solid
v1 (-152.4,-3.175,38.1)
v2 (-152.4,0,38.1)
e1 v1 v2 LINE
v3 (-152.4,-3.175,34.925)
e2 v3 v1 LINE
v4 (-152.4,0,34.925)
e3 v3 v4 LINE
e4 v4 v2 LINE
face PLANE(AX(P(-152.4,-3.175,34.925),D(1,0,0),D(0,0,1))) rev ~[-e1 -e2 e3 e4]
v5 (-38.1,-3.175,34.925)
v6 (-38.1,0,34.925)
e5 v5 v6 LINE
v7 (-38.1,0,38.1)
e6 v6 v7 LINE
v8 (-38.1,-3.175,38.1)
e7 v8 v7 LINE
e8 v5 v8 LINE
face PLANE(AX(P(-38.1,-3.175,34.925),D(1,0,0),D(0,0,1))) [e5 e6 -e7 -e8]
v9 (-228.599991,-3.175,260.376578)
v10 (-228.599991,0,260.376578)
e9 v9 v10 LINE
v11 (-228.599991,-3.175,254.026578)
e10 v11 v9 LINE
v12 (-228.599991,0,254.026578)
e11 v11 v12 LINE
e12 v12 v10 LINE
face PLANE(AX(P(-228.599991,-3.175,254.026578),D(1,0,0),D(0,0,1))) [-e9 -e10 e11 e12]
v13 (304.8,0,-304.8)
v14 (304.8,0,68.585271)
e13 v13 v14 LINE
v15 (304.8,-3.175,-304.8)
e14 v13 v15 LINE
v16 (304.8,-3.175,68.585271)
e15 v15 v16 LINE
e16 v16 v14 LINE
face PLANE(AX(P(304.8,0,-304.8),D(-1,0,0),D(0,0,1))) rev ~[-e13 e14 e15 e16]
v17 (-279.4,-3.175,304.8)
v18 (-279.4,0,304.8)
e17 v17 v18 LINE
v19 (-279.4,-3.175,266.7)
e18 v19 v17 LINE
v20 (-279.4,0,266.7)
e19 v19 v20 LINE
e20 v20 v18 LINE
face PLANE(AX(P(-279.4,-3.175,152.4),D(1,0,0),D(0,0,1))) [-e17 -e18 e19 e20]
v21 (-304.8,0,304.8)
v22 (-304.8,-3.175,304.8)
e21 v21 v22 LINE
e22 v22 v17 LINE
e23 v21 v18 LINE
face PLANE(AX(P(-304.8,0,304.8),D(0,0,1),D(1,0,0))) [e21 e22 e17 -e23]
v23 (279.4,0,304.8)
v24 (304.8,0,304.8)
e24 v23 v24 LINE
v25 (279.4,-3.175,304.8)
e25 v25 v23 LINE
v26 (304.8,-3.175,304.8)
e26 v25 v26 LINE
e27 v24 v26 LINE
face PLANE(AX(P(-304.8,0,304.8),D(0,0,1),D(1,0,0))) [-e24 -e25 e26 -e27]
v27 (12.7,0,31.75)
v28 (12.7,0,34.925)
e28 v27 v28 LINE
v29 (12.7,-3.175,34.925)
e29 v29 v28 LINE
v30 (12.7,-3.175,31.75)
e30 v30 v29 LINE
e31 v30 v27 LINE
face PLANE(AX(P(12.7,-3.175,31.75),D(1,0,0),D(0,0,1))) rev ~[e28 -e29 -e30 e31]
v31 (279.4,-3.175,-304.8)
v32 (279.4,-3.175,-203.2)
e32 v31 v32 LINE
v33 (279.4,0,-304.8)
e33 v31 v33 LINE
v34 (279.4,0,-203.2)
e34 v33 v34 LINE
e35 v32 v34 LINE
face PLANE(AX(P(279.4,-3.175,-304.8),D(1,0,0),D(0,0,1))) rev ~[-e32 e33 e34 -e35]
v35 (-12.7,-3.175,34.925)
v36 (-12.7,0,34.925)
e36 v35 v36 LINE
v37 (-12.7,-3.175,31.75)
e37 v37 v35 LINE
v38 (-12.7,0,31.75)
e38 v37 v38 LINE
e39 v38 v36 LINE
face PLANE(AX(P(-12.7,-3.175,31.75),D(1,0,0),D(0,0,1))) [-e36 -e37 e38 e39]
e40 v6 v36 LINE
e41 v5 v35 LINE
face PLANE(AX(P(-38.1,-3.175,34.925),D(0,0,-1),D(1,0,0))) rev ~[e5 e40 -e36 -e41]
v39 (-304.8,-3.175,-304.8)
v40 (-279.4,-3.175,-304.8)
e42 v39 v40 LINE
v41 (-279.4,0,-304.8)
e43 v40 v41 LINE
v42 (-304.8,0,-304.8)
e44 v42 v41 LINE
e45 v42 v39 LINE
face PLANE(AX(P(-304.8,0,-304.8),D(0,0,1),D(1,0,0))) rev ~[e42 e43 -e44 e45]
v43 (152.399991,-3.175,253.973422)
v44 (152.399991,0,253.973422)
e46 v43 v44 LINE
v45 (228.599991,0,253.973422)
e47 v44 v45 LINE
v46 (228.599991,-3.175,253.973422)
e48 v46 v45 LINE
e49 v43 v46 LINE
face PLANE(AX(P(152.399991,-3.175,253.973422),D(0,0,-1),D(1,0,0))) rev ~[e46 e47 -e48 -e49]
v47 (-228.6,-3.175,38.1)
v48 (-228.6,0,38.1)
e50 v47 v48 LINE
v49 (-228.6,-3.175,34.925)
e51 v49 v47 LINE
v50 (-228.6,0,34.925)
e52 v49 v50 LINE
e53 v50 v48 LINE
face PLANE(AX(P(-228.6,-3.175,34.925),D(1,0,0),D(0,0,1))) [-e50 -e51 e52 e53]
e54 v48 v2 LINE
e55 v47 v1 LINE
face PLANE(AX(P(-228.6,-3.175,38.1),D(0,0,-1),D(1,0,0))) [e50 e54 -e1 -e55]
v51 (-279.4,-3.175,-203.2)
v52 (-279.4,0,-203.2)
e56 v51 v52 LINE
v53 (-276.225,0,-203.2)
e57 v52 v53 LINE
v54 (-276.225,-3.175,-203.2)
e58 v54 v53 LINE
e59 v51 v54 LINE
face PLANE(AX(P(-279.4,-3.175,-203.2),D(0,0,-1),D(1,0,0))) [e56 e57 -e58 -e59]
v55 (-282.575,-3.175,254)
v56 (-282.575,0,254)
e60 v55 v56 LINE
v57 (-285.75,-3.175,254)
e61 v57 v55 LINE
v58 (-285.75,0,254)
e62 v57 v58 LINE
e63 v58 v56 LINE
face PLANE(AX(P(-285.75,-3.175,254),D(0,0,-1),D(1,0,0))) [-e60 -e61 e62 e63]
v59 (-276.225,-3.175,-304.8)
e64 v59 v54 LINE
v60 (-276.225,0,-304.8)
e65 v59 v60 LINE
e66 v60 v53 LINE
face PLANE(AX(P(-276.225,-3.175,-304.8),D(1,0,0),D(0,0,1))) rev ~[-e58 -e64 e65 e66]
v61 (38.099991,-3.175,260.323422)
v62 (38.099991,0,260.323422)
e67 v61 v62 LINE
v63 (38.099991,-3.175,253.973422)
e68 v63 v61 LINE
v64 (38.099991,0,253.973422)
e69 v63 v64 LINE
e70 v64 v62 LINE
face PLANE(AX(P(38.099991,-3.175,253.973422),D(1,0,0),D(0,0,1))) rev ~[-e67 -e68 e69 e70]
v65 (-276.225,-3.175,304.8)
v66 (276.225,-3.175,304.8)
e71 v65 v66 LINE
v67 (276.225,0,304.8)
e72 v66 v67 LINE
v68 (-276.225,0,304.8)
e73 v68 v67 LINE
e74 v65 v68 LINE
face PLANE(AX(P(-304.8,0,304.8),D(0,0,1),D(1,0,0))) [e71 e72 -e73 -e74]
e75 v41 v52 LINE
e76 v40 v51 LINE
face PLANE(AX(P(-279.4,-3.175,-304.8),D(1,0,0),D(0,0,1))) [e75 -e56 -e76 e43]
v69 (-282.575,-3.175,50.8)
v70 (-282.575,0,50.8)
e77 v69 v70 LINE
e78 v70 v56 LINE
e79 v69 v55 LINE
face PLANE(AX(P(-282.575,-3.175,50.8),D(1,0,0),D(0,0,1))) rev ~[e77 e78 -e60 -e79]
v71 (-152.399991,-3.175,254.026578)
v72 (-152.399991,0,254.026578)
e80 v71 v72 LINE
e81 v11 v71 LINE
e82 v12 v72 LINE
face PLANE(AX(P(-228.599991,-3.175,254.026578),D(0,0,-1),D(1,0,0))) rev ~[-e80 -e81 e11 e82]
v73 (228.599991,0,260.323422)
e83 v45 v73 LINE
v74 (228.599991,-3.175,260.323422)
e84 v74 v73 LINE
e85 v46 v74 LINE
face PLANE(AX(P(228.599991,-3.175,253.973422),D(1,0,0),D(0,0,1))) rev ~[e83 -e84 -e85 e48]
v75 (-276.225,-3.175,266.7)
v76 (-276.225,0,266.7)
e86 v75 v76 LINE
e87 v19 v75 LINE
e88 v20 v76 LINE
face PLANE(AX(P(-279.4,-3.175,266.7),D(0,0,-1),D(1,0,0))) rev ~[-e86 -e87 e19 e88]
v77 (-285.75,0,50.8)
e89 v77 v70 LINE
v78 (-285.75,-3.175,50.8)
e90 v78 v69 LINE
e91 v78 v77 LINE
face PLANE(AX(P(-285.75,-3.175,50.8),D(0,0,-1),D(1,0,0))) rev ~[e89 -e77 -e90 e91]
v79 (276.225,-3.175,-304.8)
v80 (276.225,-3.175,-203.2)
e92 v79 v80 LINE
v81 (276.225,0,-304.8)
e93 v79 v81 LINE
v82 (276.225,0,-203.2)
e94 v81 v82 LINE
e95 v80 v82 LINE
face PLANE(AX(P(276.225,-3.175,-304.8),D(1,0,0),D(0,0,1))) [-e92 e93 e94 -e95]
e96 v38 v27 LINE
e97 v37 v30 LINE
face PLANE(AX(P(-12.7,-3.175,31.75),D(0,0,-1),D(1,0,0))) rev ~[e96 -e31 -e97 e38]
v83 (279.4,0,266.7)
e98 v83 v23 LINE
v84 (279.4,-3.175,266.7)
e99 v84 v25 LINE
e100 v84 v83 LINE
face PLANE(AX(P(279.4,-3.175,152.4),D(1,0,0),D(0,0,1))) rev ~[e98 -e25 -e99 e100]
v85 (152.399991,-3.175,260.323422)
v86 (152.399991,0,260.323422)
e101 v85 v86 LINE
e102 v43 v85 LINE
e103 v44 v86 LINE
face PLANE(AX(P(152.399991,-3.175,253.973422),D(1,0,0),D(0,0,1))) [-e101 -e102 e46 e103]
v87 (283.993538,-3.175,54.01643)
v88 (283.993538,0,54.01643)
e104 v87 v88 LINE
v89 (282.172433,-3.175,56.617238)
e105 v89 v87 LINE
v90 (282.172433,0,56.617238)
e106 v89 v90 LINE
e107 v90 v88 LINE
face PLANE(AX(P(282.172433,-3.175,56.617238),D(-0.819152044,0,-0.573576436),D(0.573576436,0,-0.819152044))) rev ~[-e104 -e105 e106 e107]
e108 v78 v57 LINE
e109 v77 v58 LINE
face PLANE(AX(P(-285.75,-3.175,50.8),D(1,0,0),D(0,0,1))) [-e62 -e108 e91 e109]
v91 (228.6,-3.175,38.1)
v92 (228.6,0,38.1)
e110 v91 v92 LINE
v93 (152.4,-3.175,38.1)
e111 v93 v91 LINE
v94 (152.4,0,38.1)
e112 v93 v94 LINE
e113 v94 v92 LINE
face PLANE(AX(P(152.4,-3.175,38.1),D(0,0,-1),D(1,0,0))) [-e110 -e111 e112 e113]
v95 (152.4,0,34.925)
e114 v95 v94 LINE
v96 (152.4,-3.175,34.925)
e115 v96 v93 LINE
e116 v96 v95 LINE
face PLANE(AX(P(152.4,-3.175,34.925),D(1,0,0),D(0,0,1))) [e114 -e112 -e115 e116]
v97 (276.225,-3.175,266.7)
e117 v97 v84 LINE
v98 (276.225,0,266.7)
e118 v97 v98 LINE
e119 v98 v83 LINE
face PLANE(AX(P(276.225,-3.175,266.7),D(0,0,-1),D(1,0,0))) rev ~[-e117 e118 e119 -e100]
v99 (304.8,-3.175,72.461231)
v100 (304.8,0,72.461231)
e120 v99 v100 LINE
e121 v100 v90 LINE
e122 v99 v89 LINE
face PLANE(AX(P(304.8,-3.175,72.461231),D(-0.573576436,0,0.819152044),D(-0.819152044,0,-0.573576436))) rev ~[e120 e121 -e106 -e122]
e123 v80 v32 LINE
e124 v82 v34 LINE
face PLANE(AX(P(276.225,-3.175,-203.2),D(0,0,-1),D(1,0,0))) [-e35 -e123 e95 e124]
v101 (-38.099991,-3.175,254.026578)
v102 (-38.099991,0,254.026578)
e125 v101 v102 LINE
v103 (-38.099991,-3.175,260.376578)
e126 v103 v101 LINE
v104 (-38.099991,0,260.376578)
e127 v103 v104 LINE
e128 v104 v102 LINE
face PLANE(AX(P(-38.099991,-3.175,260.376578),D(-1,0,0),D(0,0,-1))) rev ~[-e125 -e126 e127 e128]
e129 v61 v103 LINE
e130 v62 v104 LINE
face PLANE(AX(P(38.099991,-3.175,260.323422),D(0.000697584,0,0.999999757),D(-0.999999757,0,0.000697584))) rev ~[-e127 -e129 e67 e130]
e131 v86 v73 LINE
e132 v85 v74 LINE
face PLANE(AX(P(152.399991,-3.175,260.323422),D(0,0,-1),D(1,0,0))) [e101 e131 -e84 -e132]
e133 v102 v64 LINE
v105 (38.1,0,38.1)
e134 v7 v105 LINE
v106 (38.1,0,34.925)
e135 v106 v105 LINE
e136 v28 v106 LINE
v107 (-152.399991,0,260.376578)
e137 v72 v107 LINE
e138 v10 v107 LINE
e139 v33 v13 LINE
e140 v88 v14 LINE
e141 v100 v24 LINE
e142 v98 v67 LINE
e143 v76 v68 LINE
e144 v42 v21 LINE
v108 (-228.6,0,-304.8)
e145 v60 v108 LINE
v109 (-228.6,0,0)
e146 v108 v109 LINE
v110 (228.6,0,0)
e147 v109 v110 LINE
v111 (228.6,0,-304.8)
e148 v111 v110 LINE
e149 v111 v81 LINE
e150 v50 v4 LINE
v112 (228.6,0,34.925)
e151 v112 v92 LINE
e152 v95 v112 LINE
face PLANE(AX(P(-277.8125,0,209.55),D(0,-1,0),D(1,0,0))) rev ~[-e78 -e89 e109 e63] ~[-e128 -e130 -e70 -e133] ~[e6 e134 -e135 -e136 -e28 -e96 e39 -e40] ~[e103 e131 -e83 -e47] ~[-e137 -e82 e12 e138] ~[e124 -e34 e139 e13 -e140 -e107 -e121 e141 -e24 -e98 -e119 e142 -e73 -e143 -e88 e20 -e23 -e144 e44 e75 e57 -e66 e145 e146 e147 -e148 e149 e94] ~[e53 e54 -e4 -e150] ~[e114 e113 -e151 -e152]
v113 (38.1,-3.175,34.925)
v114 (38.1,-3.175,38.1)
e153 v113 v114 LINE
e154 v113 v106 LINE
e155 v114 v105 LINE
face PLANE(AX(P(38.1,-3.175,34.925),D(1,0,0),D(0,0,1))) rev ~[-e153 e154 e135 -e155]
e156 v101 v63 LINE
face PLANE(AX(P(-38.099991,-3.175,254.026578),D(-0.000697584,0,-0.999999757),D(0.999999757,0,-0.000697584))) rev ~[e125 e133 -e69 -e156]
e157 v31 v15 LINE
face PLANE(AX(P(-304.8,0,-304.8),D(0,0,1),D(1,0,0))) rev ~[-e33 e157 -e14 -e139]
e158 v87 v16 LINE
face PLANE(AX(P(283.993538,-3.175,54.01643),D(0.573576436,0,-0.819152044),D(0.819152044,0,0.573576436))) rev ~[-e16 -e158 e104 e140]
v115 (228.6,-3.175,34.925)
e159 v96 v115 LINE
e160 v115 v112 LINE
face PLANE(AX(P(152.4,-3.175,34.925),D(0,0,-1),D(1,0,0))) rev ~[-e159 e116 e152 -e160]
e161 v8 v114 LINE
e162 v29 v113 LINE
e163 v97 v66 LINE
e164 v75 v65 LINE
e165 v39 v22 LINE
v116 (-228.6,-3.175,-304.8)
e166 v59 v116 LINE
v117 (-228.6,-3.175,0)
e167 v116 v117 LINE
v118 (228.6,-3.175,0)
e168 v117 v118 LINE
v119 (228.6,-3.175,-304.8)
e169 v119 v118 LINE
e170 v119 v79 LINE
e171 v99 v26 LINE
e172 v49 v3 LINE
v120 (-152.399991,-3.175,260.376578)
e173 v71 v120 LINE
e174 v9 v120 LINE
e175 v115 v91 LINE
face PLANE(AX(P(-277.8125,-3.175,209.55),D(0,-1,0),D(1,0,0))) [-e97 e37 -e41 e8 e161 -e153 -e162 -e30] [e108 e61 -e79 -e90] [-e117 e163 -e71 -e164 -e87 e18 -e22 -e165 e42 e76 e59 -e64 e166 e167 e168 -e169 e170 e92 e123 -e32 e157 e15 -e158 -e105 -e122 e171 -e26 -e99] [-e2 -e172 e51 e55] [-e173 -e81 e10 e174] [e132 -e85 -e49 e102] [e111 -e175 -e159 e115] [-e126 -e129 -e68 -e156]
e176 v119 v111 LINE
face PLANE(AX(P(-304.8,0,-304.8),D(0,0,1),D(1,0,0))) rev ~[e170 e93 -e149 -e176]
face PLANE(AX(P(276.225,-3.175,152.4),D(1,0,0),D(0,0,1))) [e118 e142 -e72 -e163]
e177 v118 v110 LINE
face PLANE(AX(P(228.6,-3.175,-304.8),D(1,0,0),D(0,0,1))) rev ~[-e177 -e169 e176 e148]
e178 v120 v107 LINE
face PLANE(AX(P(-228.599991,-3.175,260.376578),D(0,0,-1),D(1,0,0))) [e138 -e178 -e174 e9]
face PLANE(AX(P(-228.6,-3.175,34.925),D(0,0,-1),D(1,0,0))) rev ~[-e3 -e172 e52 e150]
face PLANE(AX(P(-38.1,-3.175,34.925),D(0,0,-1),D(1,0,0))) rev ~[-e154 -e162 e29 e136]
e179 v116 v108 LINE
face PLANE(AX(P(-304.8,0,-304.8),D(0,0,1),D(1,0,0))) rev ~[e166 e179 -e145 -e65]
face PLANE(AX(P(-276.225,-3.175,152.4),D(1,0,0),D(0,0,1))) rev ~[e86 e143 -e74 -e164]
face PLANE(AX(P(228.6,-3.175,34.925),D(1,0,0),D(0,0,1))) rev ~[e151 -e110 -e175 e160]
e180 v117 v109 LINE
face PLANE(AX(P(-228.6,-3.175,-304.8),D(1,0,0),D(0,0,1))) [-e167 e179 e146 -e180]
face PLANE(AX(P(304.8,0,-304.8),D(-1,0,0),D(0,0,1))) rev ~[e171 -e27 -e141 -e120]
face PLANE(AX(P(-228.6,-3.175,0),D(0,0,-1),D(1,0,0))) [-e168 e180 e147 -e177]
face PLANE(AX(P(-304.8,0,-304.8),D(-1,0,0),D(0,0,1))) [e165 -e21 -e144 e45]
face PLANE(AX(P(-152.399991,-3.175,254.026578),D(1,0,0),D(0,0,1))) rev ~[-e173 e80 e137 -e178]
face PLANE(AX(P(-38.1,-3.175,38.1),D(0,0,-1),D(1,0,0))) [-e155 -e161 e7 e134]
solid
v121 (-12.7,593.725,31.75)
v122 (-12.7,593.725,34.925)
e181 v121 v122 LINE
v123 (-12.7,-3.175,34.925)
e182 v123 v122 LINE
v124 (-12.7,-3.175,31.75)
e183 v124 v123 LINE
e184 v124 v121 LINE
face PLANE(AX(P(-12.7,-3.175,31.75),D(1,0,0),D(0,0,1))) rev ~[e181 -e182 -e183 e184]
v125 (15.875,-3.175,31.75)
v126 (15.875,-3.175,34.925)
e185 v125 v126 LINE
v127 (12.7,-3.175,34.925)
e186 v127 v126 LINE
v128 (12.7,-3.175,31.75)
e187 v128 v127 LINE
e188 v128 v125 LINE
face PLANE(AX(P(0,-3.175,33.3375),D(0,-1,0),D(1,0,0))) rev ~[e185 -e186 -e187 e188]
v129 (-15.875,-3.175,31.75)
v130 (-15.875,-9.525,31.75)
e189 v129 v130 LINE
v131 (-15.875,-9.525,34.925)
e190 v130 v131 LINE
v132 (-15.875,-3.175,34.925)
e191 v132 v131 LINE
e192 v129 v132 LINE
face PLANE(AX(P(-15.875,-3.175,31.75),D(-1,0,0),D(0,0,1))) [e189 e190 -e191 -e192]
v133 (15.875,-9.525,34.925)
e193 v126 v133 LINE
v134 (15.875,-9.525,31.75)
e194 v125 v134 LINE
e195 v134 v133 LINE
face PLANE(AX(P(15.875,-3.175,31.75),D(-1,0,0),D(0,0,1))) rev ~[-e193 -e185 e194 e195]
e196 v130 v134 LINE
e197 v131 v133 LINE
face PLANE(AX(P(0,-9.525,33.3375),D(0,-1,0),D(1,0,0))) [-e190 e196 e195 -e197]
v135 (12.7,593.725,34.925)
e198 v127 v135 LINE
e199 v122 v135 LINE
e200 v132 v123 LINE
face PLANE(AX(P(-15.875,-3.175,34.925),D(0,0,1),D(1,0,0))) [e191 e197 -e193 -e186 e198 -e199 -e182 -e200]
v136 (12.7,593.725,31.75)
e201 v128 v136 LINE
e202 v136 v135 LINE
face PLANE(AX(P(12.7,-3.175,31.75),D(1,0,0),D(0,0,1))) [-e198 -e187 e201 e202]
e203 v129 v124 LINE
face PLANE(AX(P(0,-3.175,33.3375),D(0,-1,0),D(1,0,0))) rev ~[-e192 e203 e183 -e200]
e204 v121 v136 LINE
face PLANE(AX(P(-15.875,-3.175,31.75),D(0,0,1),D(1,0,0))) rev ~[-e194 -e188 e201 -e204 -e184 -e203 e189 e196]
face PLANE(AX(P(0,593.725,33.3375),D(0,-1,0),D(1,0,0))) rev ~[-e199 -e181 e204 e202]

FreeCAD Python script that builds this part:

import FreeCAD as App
import Part
import Sketcher
from FreeCAD import Vector
Q = App.Units.Quantity

doc = App.newDocument("Part")
body = doc.addObject("PartDesign::Body", "Body")

# Sketch on XZ plane
sketch1 = body.newObject("Sketcher::SketchObject", "Sketch")
sketch1.AttachmentSupport = (doc.getObject("XZ_Plane"), [""])
sketch1.MapMode = "FlatFace"
sketch1.addGeometry(Part.LineSegment(Vector(-305, 305, 0), Vector(-305, -305, 0)), False)
sketch1.addGeometry(Part.LineSegment(Vector(-305, -305, 0), Vector(305, -305, 0)), False)
sketch1.addGeometry(Part.LineSegment(Vector(305, -305, 0), Vector(305, 305, 0)), False)
sketch1.addGeometry(Part.LineSegment(Vector(305, 305, 0), Vector(-305, 305, 0)), False)
sketch1.addConstraint(Sketcher.Constraint("Coincident", 0, 2, 1, 1))
sketch1.addConstraint(Sketcher.Constraint("Coincident", 1, 2, 2, 1))
sketch1.addConstraint(Sketcher.Constraint("Coincident", 2, 2, 3, 1))
sketch1.addConstraint(Sketcher.Constraint("Coincident", 3, 2, 0, 1))
sketch1.addConstraint(Sketcher.Constraint("Vertical", 0))
sketch1.addConstraint(Sketcher.Constraint("Horizontal", 1))
sketch1.addConstraint(Sketcher.Constraint("Vertical", 2))
sketch1.addConstraint(Sketcher.Constraint("Horizontal", 3))
sketch1.addConstraint(Sketcher.Constraint("Symmetric", 0, 2, 2, 2, -1, 1))
sketch1.addConstraint(Sketcher.Constraint("Equal", 3, 0))
sketch1.addConstraint(Sketcher.Constraint("DistanceX", 1, 1, 1, 2, Q("24 in")))
pad1 = body.newObject("PartDesign::Pad", "Pad")
pad1.Profile = sketch1
pad1.Length = Q("0.125 in")

# Sketch on XZ plane
sketch2 = body.newObject("Sketcher::SketchObject", "Sketch001")
sketch2.AttachmentSupport = (doc.getObject("XZ_Plane"), [""])
sketch2.MapMode = "FlatFace"
sketch2.AttachmentOffset = App.Placement(Vector(0, 0, 0.125 * 25.4), App.Rotation())
sketch2.addGeometry(Part.LineSegment(Vector(-228.6, 0, 0), Vector(-228.6, -304.8, 0)), False)
sketch2.addGeometry(Part.LineSegment(Vector(-228.6, -304.8, 0), Vector(228.6, -304.8, 0)), False)
sketch2.addGeometry(Part.LineSegment(Vector(228.6, -304.8, 0), Vector(228.6, 0, 0)), False)
sketch2.addGeometry(Part.LineSegment(Vector(228.6, 0, 0), Vector(-228.6, 0, 0)), False)
sketch2.addGeometry(Part.LineSegment(Vector(-279.4, 304.8, 0), Vector(-279.4, 152.4, 0)), False)
sketch2.addGeometry(Part.LineSegment(Vector(-279.4, 152.4, 0), Vector(-276.2, 152.4, 0)), False)
sketch2.addGeometry(Part.LineSegment(Vector(-276.2, 152.4, 0), Vector(-276.2, 304.8, 0)), False)
sketch2.addGeometry(Part.LineSegment(Vector(-276.2, 304.8, 0), Vector(-279.4, 304.8, 0)), False)
sketch2.addGeometry(Part.LineSegment(Vector(276.2, 304.8, 0), Vector(276.2, 152.4, 0)), False)
sketch2.addGeometry(Part.LineSegment(Vector(276.2, 152.4, 0), Vector(279.4, 152.4, 0)), False)
sketch2.addGeometry(Part.LineSegment(Vector(279.4, 152.4, 0), Vector(279.4, 304.8, 0)), False)
sketch2.addGeometry(Part.LineSegment(Vector(279.4, 304.8, 0), Vector(276.2, 304.8, 0)), False)
sketch2.addGeometry(Part.LineSegment(Vector(284, 54, 0), Vector(304.8, 68.6, 0)), False)
sketch2.addGeometry(Part.LineSegment(Vector(304.8, 68.6, 0), Vector(304.8, 72.5, 0)), False)
sketch2.addGeometry(Part.LineSegment(Vector(304.8, 72.5, 0), Vector(282.2, 56.6, 0)), False)
sketch2.addGeometry(Part.LineSegment(Vector(282.2, 56.6, 0), Vector(284, 54, 0)), False)
sketch2.addGeometry(Part.LineSegment(Vector(-228.6, 38.1, 0), Vector(-228.6, 34.9, 0)), False)
sketch2.addGeometry(Part.LineSegment(Vector(-228.6, 34.9, 0), Vector(-152.4, 34.9, 0)), False)
sketch2.addGeometry(Part.LineSegment(Vector(-152.4, 34.9, 0), Vector(-152.4, 38.1, 0)), False)
sketch2.addGeometry(Part.LineSegment(Vector(-152.4, 38.1, 0), Vector(-228.6, 38.1, 0)), False)
sketch2.addGeometry(Part.LineSegment(Vector(-38.1, 38.1, 0), Vector(-38.1, 34.9, 0)), False)
sketch2.addGeometry(Part.LineSegment(Vector(-38.1, 34.9, 0), Vector(38.1, 34.9, 0)), False)
sketch2.addGeometry(Part.LineSegment(Vector(38.1, 34.9, 0), Vector(38.1, 38.1, 0)), False)
sketch2.addGeometry(Part.LineSegment(Vector(38.1, 38.1, 0), Vector(-38.1, 38.1, 0)), False)
sketch2.addGeometry(Part.LineSegment(Vector(152.4, 38.1, 0), Vector(152.4, 34.9, 0)), False)
sketch2.addGeometry(Part.LineSegment(Vector(152.4, 34.9, 0), Vector(228.6, 34.9, 0)), False)
sketch2.addGeometry(Part.LineSegment(Vector(228.6, 34.9, 0), Vector(228.6, 38.1, 0)), False)
sketch2.addGeometry(Part.LineSegment(Vector(228.6, 38.1, 0), Vector(152.4, 38.1, 0)), False)
sketch2.addGeometry(Part.LineSegment(Vector(38.1, 260.3, 0), Vector(-38.1, 260.4, 0)), False)
sketch2.addGeometry(Part.LineSegment(Vector(-38.1, 260.4, 0), Vector(-38.1, 254, 0)), False)
sketch2.addGeometry(Part.LineSegment(Vector(-38.1, 254, 0), Vector(38.1, 254, 0)), False)
sketch2.addGeometry(Part.LineSegment(Vector(38.1, 254, 0), Vector(38.1, 260.3, 0)), False)
sketch2.addGeometry(Part.LineSegment(Vector(-228.6, 260.4, 0), Vector(-228.6, 254, 0)), False)
sketch2.addGeometry(Part.LineSegment(Vector(-228.6, 254, 0), Vector(-152.4, 254, 0)), False)
sketch2.addGeometry(Part.LineSegment(Vector(-152.4, 254, 0), Vector(-152.4, 260.4, 0)), False)
sketch2.addGeometry(Part.LineSegment(Vector(-152.4, 260.4, 0), Vector(-228.6, 260.4, 0)), False)
sketch2.addGeometry(Part.LineSegment(Vector(152.4, 260.3, 0), Vector(152.4, 254, 0)), False)
sketch2.addGeometry(Part.LineSegment(Vector(152.4, 254, 0), Vector(228.6, 254, 0)), False)
sketch2.addGeometry(Part.LineSegment(Vector(228.6, 254, 0), Vector(228.6, 260.3, 0)), False)
sketch2.addGeometry(Part.LineSegment(Vector(228.6, 260.3, 0), Vector(152.4, 260.3, 0)), False)
sketch2.addConstraint(Sketcher.Constraint("Coincident", 0, 2, 1, 1))
sketch2.addConstraint(Sketcher.Constraint("Coincident", 1, 2, 2, 1))
sketch2.addConstraint(Sketcher.Constraint("Coincident", 2, 2, 3, 1))
sketch2.addConstraint(Sketcher.Constraint("Coincident", 3, 2, 0, 1))
sketch2.addConstraint(Sketcher.Constraint("Coincident", 4, 2, 5, 1))
sketch2.addConstraint(Sketcher.Constraint("Coincident", 5, 2, 6, 1))
sketch2.addConstraint(Sketcher.Constraint("Coincident", 6, 2, 7, 1))
sketch2.addConstraint(Sketcher.Constraint("Coincident", 7, 2, 4, 1))
sketch2.addConstraint(Sketcher.Constraint("Coincident", 8, 2, 9, 1))
sketch2.addConstraint(Sketcher.Constraint("Coincident", 9, 2, 10, 1))
sketch2.addConstraint(Sketcher.Constraint("Coincident", 10, 2, 11, 1))
sketch2.addConstraint(Sketcher.Constraint("Coincident", 11, 2, 8, 1))
sketch2.addConstraint(Sketcher.Constraint("Coincident", 12, 2, 13, 1))
sketch2.addConstraint(Sketcher.Constraint("Coincident", 13, 2, 14, 1))
sketch2.addConstraint(Sketcher.Constraint("Coincident", 14, 2, 15, 1))
sketch2.addConstraint(Sketcher.Constraint("Coincident", 15, 2, 12, 1))
sketch2.addConstraint(Sketcher.Constraint("Coincident", 16, 2, 17, 1))
sketch2.addConstraint(Sketcher.Constraint("Coincident", 17, 2, 18, 1))
sketch2.addConstraint(Sketcher.Constraint("Coincident", 18, 2, 19, 1))
sketch2.addConstraint(Sketcher.Constraint("Coincident", 19, 2, 16, 1))
sketch2.addConstraint(Sketcher.Constraint("Coincident", 20, 2, 21, 1))
sketch2.addConstraint(Sketcher.Constraint("Coincident", 21, 2, 22, 1))
sketch2.addConstraint(Sketcher.Constraint("Coincident", 22, 2, 23, 1))
sketch2.addConstraint(Sketcher.Constraint("Coincident", 23, 2, 20, 1))
sketch2.addConstraint(Sketcher.Constraint("Coincident", 24, 2, 25, 1))
sketch2.addConstraint(Sketcher.Constraint("Coincident", 25, 2, 26, 1))
sketch2.addConstraint(Sketcher.Constraint("Coincident", 26, 2, 27, 1))
sketch2.addConstraint(Sketcher.Constraint("Coincident", 27, 2, 24, 1))
sketch2.addConstraint(Sketcher.Constraint("Coincident", 28, 2, 29, 1))
sketch2.addConstraint(Sketcher.Constraint("Coincident", 29, 2, 30, 1))
sketch2.addConstraint(Sketcher.Constraint("Coincident", 30, 2, 31, 1))
sketch2.addConstraint(Sketcher.Constraint("Coincident", 31, 2, 28, 1))
sketch2.addConstraint(Sketcher.Constraint("Coincident", 32, 2, 33, 1))
sketch2.addConstraint(Sketcher.Constraint("Coincident", 33, 2, 34, 1))
sketch2.addConstraint(Sketcher.Constraint("Coincident", 34, 2, 35, 1))
sketch2.addConstraint(Sketcher.Constraint("Coincident", 35, 2, 32, 1))
sketch2.addConstraint(Sketcher.Constraint("Coincident", 36, 2, 37, 1))
sketch2.addConstraint(Sketcher.Constraint("Coincident", 37, 2, 38, 1))
sketch2.addConstraint(Sketcher.Constraint("Coincident", 38, 2, 39, 1))
sketch2.addConstraint(Sketcher.Constraint("Coincident", 39, 2, 36, 1))
sketch2.addConstraint(Sketcher.Constraint("Vertical", 0))
sketch2.addConstraint(Sketcher.Constraint("Horizontal", 1))
sketch2.addConstraint(Sketcher.Constraint("Vertical", 2))
sketch2.addConstraint(Sketcher.Constraint("Horizontal", 3))
sketch2.addConstraint(Sketcher.Constraint("Vertical", 4))
sketch2.addConstraint(Sketcher.Constraint("Horizontal", 5))
sketch2.addConstraint(Sketcher.Constraint("Vertical", 6))
sketch2.addConstraint(Sketcher.Constraint("Horizontal", 7))
sketch2.addConstraint(Sketcher.Constraint("Vertical", 8))
sketch2.addConstraint(Sketcher.Constraint("Horizontal", 9))
sketch2.addConstraint(Sketcher.Constraint("Vertical", 10))
sketch2.addConstraint(Sketcher.Constraint("Horizontal", 11))
sketch2.addConstraint(Sketcher.Constraint("Vertical", 13))
sketch2.addConstraint(Sketcher.Constraint("Vertical", 16))
sketch2.addConstraint(Sketcher.Constraint("Horizontal", 17))
sketch2.addConstraint(Sketcher.Constraint("Vertical", 18))
sketch2.addConstraint(Sketcher.Constraint("Horizontal", 19))
sketch2.addConstraint(Sketcher.Constraint("Vertical", 20))
sketch2.addConstraint(Sketcher.Constraint("Horizontal", 21))
sketch2.addConstraint(Sketcher.Constraint("Vertical", 22))
sketch2.addConstraint(Sketcher.Constraint("Horizontal", 23))
sketch2.addConstraint(Sketcher.Constraint("Vertical", 24))
sketch2.addConstraint(Sketcher.Constraint("Horizontal", 25))
sketch2.addConstraint(Sketcher.Constraint("Vertical", 26))
sketch2.addConstraint(Sketcher.Constraint("Horizontal", 27))
sketch2.addConstraint(Sketcher.Constraint("Vertical", 29))
sketch2.addConstraint(Sketcher.Constraint("Vertical", 31))
sketch2.addConstraint(Sketcher.Constraint("Vertical", 32))
sketch2.addConstraint(Sketcher.Constraint("Horizontal", 33))
sketch2.addConstraint(Sketcher.Constraint("Vertical", 34))
sketch2.addConstraint(Sketcher.Constraint("Horizontal", 35))
sketch2.addConstraint(Sketcher.Constraint("Vertical", 36))
sketch2.addConstraint(Sketcher.Constraint("Horizontal", 37))
sketch2.addConstraint(Sketcher.Constraint("Vertical", 38))
sketch2.addConstraint(Sketcher.Constraint("Horizontal", 39))
sketch2.addConstraint(Sketcher.Constraint("Symmetric", 2, 2, 3, 2, -1, 1))
sketch2.addConstraint(Sketcher.Constraint("Symmetric", 5, 2, 8, 2, -2))
sketch2.addConstraint(Sketcher.Constraint("Symmetric", 7, 2, 10, 2, -2))
sketch2.addConstraint(Sketcher.Constraint("Symmetric", 17, 2, 24, 2, -2))
sketch2.addConstraint(Sketcher.Constraint("Symmetric", 19, 2, 26, 2, -2))
sketch2.addConstraint(Sketcher.Constraint("Parallel", 12, 14))
sketch2.addConstraint(Sketcher.Constraint("Perpendicular", 14, 15))
sketch2.addConstraint(Sketcher.Constraint("Parallel", 28, 30))
sketch2.addConstraint(Sketcher.Constraint("Horizontal", 17, 2, 20, 2))
sketch2.addConstraint(Sketcher.Constraint("Horizontal", 19, 2, 22, 2))
sketch2.addConstraint(Sketcher.Constraint("Horizontal", 29, 2, 32, 2))
sketch2.addConstraint(Sketcher.Constraint("Horizontal", 28, 2, 34, 2))
sketch2.addConstraint(Sketcher.Constraint("Horizontal", 30, 2, 36, 2))
sketch2.addConstraint(Sketcher.Constraint("Horizontal", 31, 2, 38, 2))
sketch2.addConstraint(Sketcher.Constraint("Vertical", 3, 2, 16, 2))
sketch2.addConstraint(Sketcher.Constraint("Equal", 19, 21))
sketch2.addConstraint(Sketcher.Constraint("Equal", 27, 33))
sketch2.addConstraint(Sketcher.Constraint("Equal", 35, 37))
sketch2.addConstraint(Sketcher.Constraint("Equal", 11, 16))
sketch2.addConstraint(Sketcher.Constraint("DistanceX", 1, 1, 1, 2, Q("18 in")))
sketch2.addConstraint(Sketcher.Constraint("DistanceX", 17, 1, 17, 2, Q("3 in")))
sketch2.addConstraint(Sketcher.Constraint("DistanceY", 0, 2, 0, 1, Q("12 in")))
sketch2.addConstraint(Sketcher.Constraint("DistanceY", 4, 2, 4, 1, Q("6 in")))
sketch2.addConstraint(Sketcher.Constraint("Distance", 12, Q("1 in")))
sketch2.addConstraint(Sketcher.Constraint("Distance", 28, Q("3 in")))
sketch2.addConstraint(Sketcher.Constraint("DistanceX", 4, 2, -1, 1, Q("11 in")))
sketch2.addConstraint(Sketcher.Constraint("DistanceY", -1, 1, 4, 2, Q("6 in")))
sketch2.addConstraint(Sketcher.Constraint("DistanceX", -1, 1, 12, 2, Q("12 in")))
sketch2.addConstraint(Sketcher.Constraint("Angle", 12, Q("35 deg")))
sketch2.addConstraint(Sketcher.Constraint("DistanceY", 29, 2, 29, 1, Q("0.25 in")))
sketch2.addConstraint(Sketcher.Constraint("DistanceY", -1, 1, 18, 2, Q("1.5 in")))
sketch2.addConstraint(Sketcher.Constraint("DistanceX", 20, 2, -1, 1, Q("1.5 in")))
sketch2.addConstraint(Sketcher.Constraint("DistanceX", 32, 2, 29, 2, Q("7.5 in")))
sketch2.addConstraint(Sketcher.Constraint("DistanceX", 30, 2, 36, 2, Q("4.5 in")))
sketch2.addConstraint(Sketcher.Constraint("DistanceX", 5, 1, 5, 2, Q("0.125 in")))
sketch2.addConstraint(Sketcher.Constraint("Distance", 15, Q("0.125 in")))
sketch2.addConstraint(Sketcher.Constraint("DistanceY", -1, 1, 12, 2, Q("68.585271 mm")))
sketch2.addConstraint(Sketcher.Constraint("DistanceX", 28, 2, -1, 1, Q("38.099991 mm")))
sketch2.addConstraint(Sketcher.Constraint("DistanceY", -1, 1, 28, 2, Q("260.376578 mm")))
sketch2.addConstraint(Sketcher.Constraint("DistanceY", -1, 1, 30, 2, Q("253.973422 mm")))
pocket1 = body.newObject("PartDesign::Pocket", "Pocket")
pocket1.Profile = sketch2
pocket1.Type = "ThroughAll"

# Sketch on XZ plane
sketch3 = body.newObject("Sketcher::SketchObject", "Sketch002")
sketch3.AttachmentSupport = (doc.getObject("XZ_Plane"), [""])
sketch3.MapMode = "FlatFace"
sketch3.AttachmentOffset = App.Placement(Vector(0, 0, 0.125 * 25.4), App.Rotation())
sketch3.addGeometry(Part.LineSegment(Vector(-279.4, -203.2, 0), Vector(-279.4, -304.8, 0)), False)
sketch3.addGeometry(Part.LineSegment(Vector(-279.4, -304.8, 0), Vector(-276.2, -304.8, 0)), False)
sketch3.addGeometry(Part.LineSegment(Vector(-276.2, -304.8, 0), Vector(-276.2, -203.2, 0)), False)
sketch3.addGeometry(Part.LineSegment(Vector(-276.2, -203.2, 0), Vector(-279.4, -203.2, 0)), False)
sketch3.addGeometry(Part.LineSegment(Vector(276.2, -203.2, 0), Vector(276.2, -304.8, 0)), False)
sketch3.addGeometry(Part.LineSegment(Vector(276.2, -304.8, 0), Vector(279.4, -304.8, 0)), False)
sketch3.addGeometry(Part.LineSegment(Vector(279.4, -304.8, 0), Vector(279.4, -203.2, 0)), False)
sketch3.addGeometry(Part.LineSegment(Vector(279.4, -203.2, 0), Vector(276.2, -203.2, 0)), False)
sketch3.addConstraint(Sketcher.Constraint("Coincident", 0, 2, 1, 1))
sketch3.addConstraint(Sketcher.Constraint("Coincident", 1, 2, 2, 1))
sketch3.addConstraint(Sketcher.Constraint("Coincident", 2, 2, 3, 1))
sketch3.addConstraint(Sketcher.Constraint("Coincident", 3, 2, 0, 1))
sketch3.addConstraint(Sketcher.Constraint("Coincident", 4, 2, 5, 1))
sketch3.addConstraint(Sketcher.Constraint("Coincident", 5, 2, 6, 1))
sketch3.addConstraint(Sketcher.Constraint("Coincident", 6, 2, 7, 1))
sketch3.addConstraint(Sketcher.Constraint("Coincident", 7, 2, 4, 1))
sketch3.addConstraint(Sketcher.Constraint("Vertical", 0))
sketch3.addConstraint(Sketcher.Constraint("Horizontal", 1))
sketch3.addConstraint(Sketcher.Constraint("Vertical", 2))
sketch3.addConstraint(Sketcher.Constraint("Horizontal", 3))
sketch3.addConstraint(Sketcher.Constraint("Vertical", 4))
sketch3.addConstraint(Sketcher.Constraint("Horizontal", 5))
sketch3.addConstraint(Sketcher.Constraint("Vertical", 6))
sketch3.addConstraint(Sketcher.Constraint("Horizontal", 7))
sketch3.addConstraint(Sketcher.Constraint("Symmetric", 1, 2, 4, 2, -2))
sketch3.addConstraint(Sketcher.Constraint("Symmetric", 3, 2, 6, 2, -2))
sketch3.addConstraint(Sketcher.Constraint("DistanceY", 0, 2, 0, 1, Q("4 in")))
sketch3.addConstraint(Sketcher.Constraint("DistanceX", 0, 2, -1, 1, Q("11 in")))
sketch3.addConstraint(Sketcher.Constraint("DistanceY", 0, 2, -1, 1, Q("12 in")))
sketch3.addConstraint(Sketcher.Constraint("DistanceX", 1, 1, 1, 2, Q("0.125 in")))
pocket2 = body.newObject("PartDesign::Pocket", "Pocket001")
pocket2.Profile = sketch3
pocket2.Type = "ThroughAll"

# Sketch on XZ plane
sketch4 = body.newObject("Sketcher::SketchObject", "Sketch003")
sketch4.AttachmentSupport = (doc.getObject("XZ_Plane"), [""])
sketch4.MapMode = "FlatFace"
sketch4.AttachmentOffset = App.Placement(Vector(0, 0, 0.125 * 25.4), App.Rotation())
sketch4.addGeometry(Part.LineSegment(Vector(-285.8, 254, 0), Vector(-285.8, 50.8, 0)), False)
sketch4.addGeometry(Part.LineSegment(Vector(-285.8, 50.8, 0), Vector(-282.6, 50.8, 0)), False)
sketch4.addGeometry(Part.LineSegment(Vector(-282.6, 50.8, 0), Vector(-282.6, 254, 0)), False)
sketch4.addGeometry(Part.LineSegment(Vector(-282.6, 254, 0), Vector(-285.8, 254, 0)), False)
sketch4.addConstraint(Sketcher.Constraint("Coincident", 0, 2, 1, 1))
sketch4.addConstraint(Sketcher.Constraint("Coincident", 1, 2, 2, 1))
sketch4.addConstraint(Sketcher.Constraint("Coincident", 2, 2, 3, 1))
sketch4.addConstraint(Sketcher.Constraint("Coincident", 3, 2, 0, 1))
sketch4.addConstraint(Sketcher.Constraint("Vertical", 0))
sketch4.addConstraint(Sketcher.Constraint("Horizontal", 1))
sketch4.addConstraint(Sketcher.Constraint("Vertical", 2))
sketch4.addConstraint(Sketcher.Constraint("Horizontal", 3))
sketch4.addConstraint(Sketcher.Constraint("DistanceY", 0, 2, 0, 1, Q("8 in")))
sketch4.addConstraint(Sketcher.Constraint("DistanceY", -1, 1, 0, 2, Q("2 in")))
sketch4.addConstraint(Sketcher.Constraint("DistanceX", 1, 1, 1, 2, Q("0.125 in")))
sketch4.addConstraint(Sketcher.Constraint("DistanceX", 0, 2, -1, 1, Q("11.25 in")))
pocket3 = body.newObject("PartDesign::Pocket", "Pocket002")
pocket3.Profile = sketch4
pocket3.Type = "ThroughAll"

# Sketch on XZ plane
sketch5 = body.newObject("Sketcher::SketchObject", "Sketch004")
sketch5.AttachmentSupport = (doc.getObject("XZ_Plane"), [""])
sketch5.MapMode = "FlatFace"
sketch5.AttachmentOffset = App.Placement(Vector(0, 0, 0.125 * 25.4), App.Rotation())
sketch5.addGeometry(Part.LineSegment(Vector(-12.7, 34.9, 0), Vector(-12.7, 31.8, 0)), False)
sketch5.addGeometry(Part.LineSegment(Vector(-12.7, 31.8, 0), Vector(12.7, 31.8, 0)), False)
sketch5.addGeometry(Part.LineSegment(Vector(12.7, 31.8, 0), Vector(12.7, 34.9, 0)), False)
sketch5.addGeometry(Part.LineSegment(Vector(12.7, 34.9, 0), Vector(-12.7, 34.9, 0)), False)
sketch5.addConstraint(Sketcher.Constraint("Coincident", 0, 2, 1, 1))
sketch5.addConstraint(Sketcher.Constraint("Coincident", 1, 2, 2, 1))
sketch5.addConstraint(Sketcher.Constraint("Coincident", 2, 2, 3, 1))
sketch5.addConstraint(Sketcher.Constraint("Coincident", 3, 2, 0, 1))
sketch5.addConstraint(Sketcher.Constraint("Vertical", 0))
sketch5.addConstraint(Sketcher.Constraint("Horizontal", 1))
sketch5.addConstraint(Sketcher.Constraint("Vertical", 2))
sketch5.addConstraint(Sketcher.Constraint("Horizontal", 3))
sketch5.addConstraint(Sketcher.Constraint("DistanceX", 1, 1, 1, 2, Q("1 in")))
sketch5.addConstraint(Sketcher.Constraint("DistanceX", 0, 2, -1, 1, Q("0.5 in")))
sketch5.addConstraint(Sketcher.Constraint("DistanceY", 0, 2, 0, 1, Q("0.125 in")))
sketch5.addConstraint(Sketcher.Constraint("DistanceY", -1, 1, 0, 2, Q("1.25 in")))
pocket4 = body.newObject("PartDesign::Pocket", "Pocket003")
pocket4.Profile = sketch5
pocket4.Type = "ThroughAll"

# Sketch on XZ plane
sketch6 = body.newObject("Sketcher::SketchObject", "Sketch005")
sketch6.AttachmentSupport = (doc.getObject("XZ_Plane"), [""])
sketch6.MapMode = "FlatFace"
sketch6.AttachmentOffset = App.Placement(Vector(0, 0, 0.125 * 25.4), App.Rotation())
sketch6.addGeometry(Part.LineSegment(Vector(-279.4, 266.7, 0), Vector(-279.4, 152.4, 0)), False)
sketch6.addGeometry(Part.LineSegment(Vector(-279.4, 152.4, 0), Vector(-276.2, 152.4, 0)), False)
sketch6.addGeometry(Part.LineSegment(Vector(-276.2, 152.4, 0), Vector(-276.2, 266.7, 0)), False)
sketch6.addGeometry(Part.LineSegment(Vector(-276.2, 266.7, 0), Vector(-279.4, 266.7, 0)), False)
sketch6.addGeometry(Part.LineSegment(Vector(276.2, 266.7, 0), Vector(276.2, 152.4, 0)), False)
sketch6.addGeometry(Part.LineSegment(Vector(276.2, 152.4, 0), Vector(279.4, 152.4, 0)), False)
sketch6.addGeometry(Part.LineSegment(Vector(279.4, 152.4, 0), Vector(279.4, 266.7, 0)), False)
sketch6.addGeometry(Part.LineSegment(Vector(279.4, 266.7, 0), Vector(276.2, 266.7, 0)), False)
sketch6.addConstraint(Sketcher.Constraint("Coincident", 0, 2, 1, 1))
sketch6.addConstraint(Sketcher.Constraint("Coincident", 1, 2, 2, 1))
sketch6.addConstraint(Sketcher.Constraint("Coincident", 2, 2, 3, 1))
sketch6.addConstraint(Sketcher.Constraint("Coincident", 3, 2, 0, 1))
sketch6.addConstraint(Sketcher.Constraint("Coincident", 4, 2, 5, 1))
sketch6.addConstraint(Sketcher.Constraint("Coincident", 5, 2, 6, 1))
sketch6.addConstraint(Sketcher.Constraint("Coincident", 6, 2, 7, 1))
sketch6.addConstraint(Sketcher.Constraint("Coincident", 7, 2, 4, 1))
sketch6.addConstraint(Sketcher.Constraint("Vertical", 0))
sketch6.addConstraint(Sketcher.Constraint("Horizontal", 1))
sketch6.addConstraint(Sketcher.Constraint("Vertical", 2))
sketch6.addConstraint(Sketcher.Constraint("Horizontal", 3))
sketch6.addConstraint(Sketcher.Constraint("Vertical", 4))
sketch6.addConstraint(Sketcher.Constraint("Horizontal", 5))
sketch6.addConstraint(Sketcher.Constraint("Vertical", 6))
sketch6.addConstraint(Sketcher.Constraint("Horizontal", 7))
sketch6.addConstraint(Sketcher.Constraint("Symmetric", 1, 2, 4, 2, -2))
sketch6.addConstraint(Sketcher.Constraint("Symmetric", 3, 2, 6, 2, -2))
sketch6.addConstraint(Sketcher.Constraint("DistanceY", 0, 2, 0, 1, Q("4.5 in")))
sketch6.addConstraint(Sketcher.Constraint("DistanceX", 0, 2, -1, 1, Q("11 in")))
sketch6.addConstraint(Sketcher.Constraint("DistanceY", -1, 1, 0, 2, Q("6 in")))
sketch6.addConstraint(Sketcher.Constraint("DistanceX", 1, 1, 1, 2, Q("0.125 in")))
pad2 = body.newObject("PartDesign::Pad", "Pad001")
pad2.Profile = sketch6
pad2.Length = Q("0.125 in")
pad2.Reversed = True
body2 = doc.addObject("PartDesign::Body", "Body001")

# Sketch on XZ plane
sketch7 = body2.newObject("Sketcher::SketchObject", "Sketch006")
sketch7.AttachmentSupport = (doc.getObject("XZ_Plane001"), [""])
sketch7.MapMode = "FlatFace"
sketch7.AttachmentOffset = App.Placement(Vector(0, 0, 0.125 * 25.4), App.Rotation())
sketch7.addGeometry(Part.LineSegment(Vector(-12.7, 34.9, 0), Vector(-12.7, 31.8, 0)), False)
sketch7.addGeometry(Part.LineSegment(Vector(-12.7, 31.8, 0), Vector(12.7, 31.8, 0)), False)
sketch7.addGeometry(Part.LineSegment(Vector(12.7, 31.8, 0), Vector(12.7, 34.9, 0)), False)
sketch7.addGeometry(Part.LineSegment(Vector(12.7, 34.9, 0), Vector(-12.7, 34.9, 0)), False)
sketch7.addConstraint(Sketcher.Constraint("Coincident", 0, 2, 1, 1))
sketch7.addConstraint(Sketcher.Constraint("Coincident", 1, 2, 2, 1))
sketch7.addConstraint(Sketcher.Constraint("Coincident", 2, 2, 3, 1))
sketch7.addConstraint(Sketcher.Constraint("Coincident", 3, 2, 0, 1))
sketch7.addConstraint(Sketcher.Constraint("Vertical", 0))
sketch7.addConstraint(Sketcher.Constraint("Horizontal", 1))
sketch7.addConstraint(Sketcher.Constraint("Vertical", 2))
sketch7.addConstraint(Sketcher.Constraint("Horizontal", 3))
sketch7.addConstraint(Sketcher.Constraint("DistanceX", 1, 1, 1, 2, Q("1 in")))
sketch7.addConstraint(Sketcher.Constraint("DistanceX", 0, 2, -1, 1, Q("0.5 in")))
sketch7.addConstraint(Sketcher.Constraint("DistanceY", 0, 2, 0, 1, Q("0.125 in")))
sketch7.addConstraint(Sketcher.Constraint("DistanceY", -1, 1, 0, 2, Q("1.25 in")))
pad3 = body2.newObject("PartDesign::Pad", "Pad002")
pad3.Profile = sketch7
pad3.Length = Q("23.5 in")
pad3.Reversed = True

# Sketch on XZ plane
sketch8 = body2.newObject("Sketcher::SketchObject", "Sketch007")
sketch8.AttachmentSupport = (doc.getObject("XZ_Plane001"), [""])
sketch8.MapMode = "FlatFace"
sketch8.AttachmentOffset = App.Placement(Vector(0, 0, 0.125 * 25.4), App.Rotation())
sketch8.addGeometry(Part.LineSegment(Vector(-15.9, 34.9, 0), Vector(-15.9, 31.8, 0)), False)
sketch8.addGeometry(Part.LineSegment(Vector(-15.9, 31.8, 0), Vector(15.9, 31.8, 0)), False)
sketch8.addGeometry(Part.LineSegment(Vector(15.9, 31.8, 0), Vector(15.9, 34.9, 0)), False)
sketch8.addGeometry(Part.LineSegment(Vector(15.9, 34.9, 0), Vector(-15.9, 34.9, 0)), False)
sketch8.addConstraint(Sketcher.Constraint("Coincident", 0, 2, 1, 1))
sketch8.addConstraint(Sketcher.Constraint("Coincident", 1, 2, 2, 1))
sketch8.addConstraint(Sketcher.Constraint("Coincident", 2, 2, 3, 1))
sketch8.addConstraint(Sketcher.Constraint("Coincident", 3, 2, 0, 1))
sketch8.addConstraint(Sketcher.Constraint("Vertical", 0))
sketch8.addConstraint(Sketcher.Constraint("Horizontal", 1))
sketch8.addConstraint(Sketcher.Constraint("Vertical", 2))
sketch8.addConstraint(Sketcher.Constraint("Horizontal", 3))
sketch8.addConstraint(Sketcher.Constraint("DistanceX", 1, 1, 1, 2, Q("1.25 in")))
sketch8.addConstraint(Sketcher.Constraint("DistanceY", 0, 2, 0, 1, Q("0.125 in")))
sketch8.addConstraint(Sketcher.Constraint("DistanceY", -1, 1, 0, 2, Q("1.25 in")))
sketch8.addConstraint(Sketcher.Constraint("DistanceX", 0, 2, -1, 1, Q("0.625 in")))
pad4 = body2.newObject("PartDesign::Pad", "Pad003")
pad4.Profile = sketch8
pad4.Length = Q("0.25 in")

doc.recompute()
